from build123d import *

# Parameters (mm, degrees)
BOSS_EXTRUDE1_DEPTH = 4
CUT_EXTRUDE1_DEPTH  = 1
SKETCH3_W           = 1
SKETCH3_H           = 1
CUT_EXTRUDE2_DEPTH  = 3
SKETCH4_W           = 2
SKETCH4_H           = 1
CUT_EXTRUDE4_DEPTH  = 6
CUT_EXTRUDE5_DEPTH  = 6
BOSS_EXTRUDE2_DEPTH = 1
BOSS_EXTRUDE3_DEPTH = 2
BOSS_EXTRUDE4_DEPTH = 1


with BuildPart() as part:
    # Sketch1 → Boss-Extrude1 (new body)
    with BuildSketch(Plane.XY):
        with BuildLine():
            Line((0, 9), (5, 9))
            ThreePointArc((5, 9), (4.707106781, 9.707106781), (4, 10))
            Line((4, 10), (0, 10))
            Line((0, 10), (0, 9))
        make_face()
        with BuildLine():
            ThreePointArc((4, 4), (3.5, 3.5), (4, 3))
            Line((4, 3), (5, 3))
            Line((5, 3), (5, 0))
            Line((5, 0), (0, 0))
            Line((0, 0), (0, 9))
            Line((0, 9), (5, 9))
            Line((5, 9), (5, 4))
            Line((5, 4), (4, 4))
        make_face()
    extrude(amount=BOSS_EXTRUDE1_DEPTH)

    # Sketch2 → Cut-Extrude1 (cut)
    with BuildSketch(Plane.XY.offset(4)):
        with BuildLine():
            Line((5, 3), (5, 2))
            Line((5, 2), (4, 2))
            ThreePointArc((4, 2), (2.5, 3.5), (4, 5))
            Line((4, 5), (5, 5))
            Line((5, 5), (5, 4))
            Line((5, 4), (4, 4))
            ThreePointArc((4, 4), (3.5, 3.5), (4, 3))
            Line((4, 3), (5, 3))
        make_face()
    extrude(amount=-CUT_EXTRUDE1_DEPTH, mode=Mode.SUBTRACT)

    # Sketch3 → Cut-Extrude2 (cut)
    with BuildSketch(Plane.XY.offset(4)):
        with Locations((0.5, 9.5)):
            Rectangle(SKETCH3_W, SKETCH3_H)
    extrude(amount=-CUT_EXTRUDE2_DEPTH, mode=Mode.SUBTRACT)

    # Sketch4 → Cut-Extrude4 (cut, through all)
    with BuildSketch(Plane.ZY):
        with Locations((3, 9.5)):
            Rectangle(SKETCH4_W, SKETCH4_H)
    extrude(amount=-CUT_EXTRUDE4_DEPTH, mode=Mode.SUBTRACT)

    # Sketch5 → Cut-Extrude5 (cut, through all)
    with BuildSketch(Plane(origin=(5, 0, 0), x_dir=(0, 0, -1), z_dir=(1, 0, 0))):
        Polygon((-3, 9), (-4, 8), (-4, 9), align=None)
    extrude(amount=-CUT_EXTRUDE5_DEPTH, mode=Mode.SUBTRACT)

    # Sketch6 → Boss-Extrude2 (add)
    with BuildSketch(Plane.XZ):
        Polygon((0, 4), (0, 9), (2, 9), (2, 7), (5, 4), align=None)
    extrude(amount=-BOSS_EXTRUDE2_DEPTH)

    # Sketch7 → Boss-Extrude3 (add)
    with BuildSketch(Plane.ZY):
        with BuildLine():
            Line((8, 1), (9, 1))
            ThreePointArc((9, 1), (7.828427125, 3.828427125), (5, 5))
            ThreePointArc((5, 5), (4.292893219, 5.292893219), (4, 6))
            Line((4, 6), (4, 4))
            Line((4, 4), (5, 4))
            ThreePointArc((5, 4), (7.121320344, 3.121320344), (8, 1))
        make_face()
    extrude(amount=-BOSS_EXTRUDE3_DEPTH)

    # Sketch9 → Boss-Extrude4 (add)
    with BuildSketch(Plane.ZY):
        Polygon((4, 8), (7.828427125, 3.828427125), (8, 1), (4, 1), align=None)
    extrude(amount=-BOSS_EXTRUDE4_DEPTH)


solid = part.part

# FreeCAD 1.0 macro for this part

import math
import FreeCAD as App
import Part
import Sketcher
Q = App.Units.Quantity

doc = App.newDocument("Part")
params = doc.addObject("Spreadsheet::Sheet", "Params")
for row, (alias, value) in enumerate([
    ("sketch1_radius", "1 mm"),
    ("sketch1_radius2", "0.5 mm"),
    ("sketch1_width", "4 mm"),
    ("sketch1_height", "10 mm"),
    ("pad1_length", "4 mm"),
    ("sketch2_radius", "0.5 mm"),
    ("sketch2_radius2", "1.5 mm"),
    ("pocket1_length", "1 mm"),
    ("sketch3_width", "1 mm"),
    ("pocket2_length", "3 mm"),
    ("sketch4_width", "1 mm"),
    ("sketch4_height", "2 mm"),
    ("sketch5_width", "1 mm"),
    ("sketch6_width", "5 mm"),
    ("sketch6_width2", "2 mm"),
    ("pad2_length", "1 mm"),
    ("sketch7_radius", "4 mm"),
    ("sketch7_radius2", "1 mm"),
    ("pad3_length", "2 mm"),
    ("sketch8_width", "7 mm"),
    ("sketch8_height", "4 mm"),
    ("pad4_length", "1 mm"),
], start=1):
    params.set(f"A{row}", alias)
    params.set(f"B{row}", "=" + value)
    params.setAlias(f"B{row}", alias)

body = doc.addObject("PartDesign::Body", "Body")

sketch1 = doc.addObject("Sketcher::SketchObject", "Sketch")
body.addObject(sketch1)
sketch1.AttachmentSupport = (doc.XY_Plane, [""])
sketch1.MapMode = "FlatFace"
sketch1.addGeometry(Part.ArcOfCircle(Part.Circle(App.Vector(4, 9, 0), App.Vector(0, 0, 1), 1), math.radians(0), math.radians(90)), False)
sketch1.addGeometry(Part.LineSegment(App.Vector(4, 10, 0), App.Vector(0, 10, 0)), False)
sketch1.addGeometry(Part.LineSegment(App.Vector(0, 10, 0), App.Vector(0, 0, 0)), False)
sketch1.addGeometry(Part.LineSegment(App.Vector(0, 0, 0), App.Vector(5, 0, 0)), False)
sketch1.addGeometry(Part.LineSegment(App.Vector(5, 0, 0), App.Vector(5, 3, 0)), False)
sketch1.addGeometry(Part.LineSegment(App.Vector(5, 3, 0), App.Vector(4, 3, 0)), False)
sketch1.addGeometry(Part.ArcOfCircle(Part.Circle(App.Vector(4, 3.5, 0), App.Vector(0, 0, 1), 0.5), math.radians(90), math.radians(270)), False)
sketch1.addGeometry(Part.LineSegment(App.Vector(4, 4, 0), App.Vector(5, 4, 0)), False)
sketch1.addGeometry(Part.LineSegment(App.Vector(5, 4, 0), App.Vector(5, 9, 0)), False)
sketch1.addConstraint(Sketcher.Constraint("Tangent", 0, 2, 1, 1))
sketch1.addConstraint(Sketcher.Constraint("Coincident", 1, 2, 2, 1))
sketch1.addConstraint(Sketcher.Constraint("Coincident", 2, 2, 3, 1))
sketch1.addConstraint(Sketcher.Constraint("Coincident", 3, 2, 4, 1))
sketch1.addConstraint(Sketcher.Constraint("Coincident", 4, 2, 5, 1))
sketch1.addConstraint(Sketcher.Constraint("Tangent", 5, 2, 6, 2))
sketch1.addConstraint(Sketcher.Constraint("Tangent", 6, 1, 7, 1))
sketch1.addConstraint(Sketcher.Constraint("Coincident", 7, 2, 8, 1))
sketch1.addConstraint(Sketcher.Constraint("Tangent", 8, 2, 0, 1))
sketch1.addConstraint(Sketcher.Constraint("Horizontal", 1))
sketch1.addConstraint(Sketcher.Constraint("Vertical", 2))
sketch1.addConstraint(Sketcher.Constraint("Horizontal", 3))
sketch1.addConstraint(Sketcher.Constraint("Vertical", 4))
sketch1.addConstraint(Sketcher.Constraint("Horizontal", 5))
sketch1.addConstraint(Sketcher.Constraint("Horizontal", 7))
sketch1.addConstraint(Sketcher.Constraint("Vertical", 8))
sketch1.addConstraint(Sketcher.Constraint("Coincident", 2, 2, -1, 1))
sketch1.addConstraint(Sketcher.Constraint("Vertical", 0, 3, 6, 3))
sketch1.addConstraint(Sketcher.Constraint("Vertical", 4, 2, 7, 2))
sketch1.addConstraint(Sketcher.Constraint("Equal", 3, 8))
sketch1.addConstraint(Sketcher.Constraint("Radius", 0, Q("1 mm")))
sketch1.addConstraint(Sketcher.Constraint("Radius", 6, Q("0.5 mm")))
sketch1.addConstraint(Sketcher.Constraint("DistanceX", 1, 2, 1, 1, Q("4 mm")))
sketch1.addConstraint(Sketcher.Constraint("DistanceY", 2, 2, 2, 1, Q("10 mm")))
sketch1.setExpression("Constraints[20]", "Params.sketch1_radius")
sketch1.setExpression("Constraints[21]", "Params.sketch1_radius2")
sketch1.setExpression("Constraints[22]", "Params.sketch1_width")
sketch1.setExpression("Constraints[23]", "Params.sketch1_height")
pad1 = doc.addObject("PartDesign::Pad", "Pad")
body.addObject(pad1)
pad1.Profile = sketch1
pad1.setExpression("Length", "Params.pad1_length")

sketch2 = doc.addObject("Sketcher::SketchObject", "Sketch001")
body.addObject(sketch2)
sketch2.AttachmentSupport = (doc.XY_Plane, [""])
sketch2.MapMode = "FlatFace"
sketch2.AttachmentOffset = App.Placement(App.Vector(0, 0, 4), App.Rotation())
sketch2.addGeometry(Part.LineSegment(App.Vector(5, 2, 0), App.Vector(5, 3, 0)), False)
sketch2.addGeometry(Part.LineSegment(App.Vector(5, 3, 0), App.Vector(4, 3, 0)), False)
sketch2.addGeometry(Part.ArcOfCircle(Part.Circle(App.Vector(4, 3.5, 0), App.Vector(0, 0, 1), 0.5), math.radians(90), math.radians(270)), False)
sketch2.addGeometry(Part.LineSegment(App.Vector(4, 4, 0), App.Vector(5, 4, 0)), False)
sketch2.addGeometry(Part.LineSegment(App.Vector(5, 4, 0), App.Vector(5, 5, 0)), False)
sketch2.addGeometry(Part.LineSegment(App.Vector(5, 5, 0), App.Vector(4, 5, 0)), False)
sketch2.addGeometry(Part.ArcOfCircle(Part.Circle(App.Vector(4, 3.5, 0), App.Vector(0, 0, 1), 1.5), math.radians(90), math.radians(270)), False)
sketch2.addGeometry(Part.LineSegment(App.Vector(4, 2, 0), App.Vector(5, 2, 0)), False)
sketch2.addConstraint(Sketcher.Constraint("Coincident", 0, 2, 1, 1))
sketch2.addConstraint(Sketcher.Constraint("Tangent", 1, 2, 2, 2))
sketch2.addConstraint(Sketcher.Constraint("Tangent", 2, 1, 3, 1))
sketch2.addConstraint(Sketcher.Constraint("Coincident", 3, 2, 4, 1))
sketch2.addConstraint(Sketcher.Constraint("Coincident", 4, 2, 5, 1))
sketch2.addConstraint(Sketcher.Constraint("Tangent", 5, 2, 6, 1))
sketch2.addConstraint(Sketcher.Constraint("Tangent", 6, 2, 7, 1))
sketch2.addConstraint(Sketcher.Constraint("Coincident", 7, 2, 0, 1))
sketch2.addConstraint(Sketcher.Constraint("Vertical", 0))
sketch2.addConstraint(Sketcher.Constraint("Horizontal", 1))
sketch2.addConstraint(Sketcher.Constraint("Horizontal", 3))
sketch2.addConstraint(Sketcher.Constraint("Vertical", 4))
sketch2.addConstraint(Sketcher.Constraint("Horizontal", 5))
sketch2.addConstraint(Sketcher.Constraint("Horizontal", 7))
sketch2.addConstraint(Sketcher.Constraint("Coincident", 6, 3, 2, 3))
sketch2.addConstraint(Sketcher.Constraint("Vertical", 0, 2, 3, 2))
sketch2.addConstraint(Sketcher.Constraint("Equal", 7, 0))
sketch2.addConstraint(Sketcher.Constraint("Radius", 2, Q("0.5 mm")))
sketch2.addConstraint(Sketcher.Constraint("Radius", 6, Q("1.5 mm")))
sketch2.addConstraint(Sketcher.Constraint("DistanceX", -1, 1, 2, 3, Q("4 mm")))
sketch2.addConstraint(Sketcher.Constraint("DistanceY", -1, 1, 0, 2, Q("3 mm")))
sketch2.setExpression("Constraints[17]", "Params.sketch2_radius")
sketch2.setExpression("Constraints[18]", "Params.sketch2_radius2")
pocket1 = doc.addObject("PartDesign::Pocket", "Pocket")
body.addObject(pocket1)
pocket1.Profile = sketch2
pocket1.setExpression("Length", "Params.pocket1_length")

sketch3 = doc.addObject("Sketcher::SketchObject", "Sketch002")
body.addObject(sketch3)
sketch3.AttachmentSupport = (doc.XY_Plane, [""])
sketch3.MapMode = "FlatFace"
sketch3.AttachmentOffset = App.Placement(App.Vector(0, 0, 4), App.Rotation())
sketch3.addGeometry(Part.LineSegment(App.Vector(0, 10, 0), App.Vector(0, 9, 0)), False)
sketch3.addGeometry(Part.LineSegment(App.Vector(0, 9, 0), App.Vector(1, 9, 0)), False)
sketch3.addGeometry(Part.LineSegment(App.Vector(1, 9, 0), App.Vector(1, 10, 0)), False)
sketch3.addGeometry(Part.LineSegment(App.Vector(1, 10, 0), App.Vector(0, 10, 0)), False)
sketch3.addConstraint(Sketcher.Constraint("Coincident", 0, 2, 1, 1))
sketch3.addConstraint(Sketcher.Constraint("Coincident", 1, 2, 2, 1))
sketch3.addConstraint(Sketcher.Constraint("Coincident", 2, 2, 3, 1))
sketch3.addConstraint(Sketcher.Constraint("Coincident", 3, 2, 0, 1))
sketch3.addConstraint(Sketcher.Constraint("Vertical", 0))
sketch3.addConstraint(Sketcher.Constraint("Horizontal", 1))
sketch3.addConstraint(Sketcher.Constraint("Vertical", 2))
sketch3.addConstraint(Sketcher.Constraint("Horizontal", 3))
sketch3.addConstraint(Sketcher.Constraint("PointOnObject", 0, 2, -2))
sketch3.addConstraint(Sketcher.Constraint("Equal", 3, 0))
sketch3.addConstraint(Sketcher.Constraint("DistanceX", 1, 1, 1, 2, Q("1 mm")))
sketch3.addConstraint(Sketcher.Constraint("DistanceY", -1, 1, 0, 2, Q("9 mm")))
sketch3.setExpression("Constraints[10]", "Params.sketch3_width")
pocket2 = doc.addObject("PartDesign::Pocket", "Pocket001")
body.addObject(pocket2)
pocket2.Profile = sketch3
pocket2.setExpression("Length", "Params.pocket2_length")

sketch4 = doc.addObject("Sketcher::SketchObject", "Sketch003")
body.addObject(sketch4)
sketch4.AttachmentSupport = (doc.YZ_Plane, [""])
sketch4.MapMode = "FlatFace"
sketch4.addGeometry(Part.LineSegment(App.Vector(10, 2, 0), App.Vector(9, 2, 0)), False)
sketch4.addGeometry(Part.LineSegment(App.Vector(9, 2, 0), App.Vector(9, 4, 0)), False)
sketch4.addGeometry(Part.LineSegment(App.Vector(9, 4, 0), App.Vector(10, 4, 0)), False)
sketch4.addGeometry(Part.LineSegment(App.Vector(10, 4, 0), App.Vector(10, 2, 0)), False)
sketch4.addConstraint(Sketcher.Constraint("Coincident", 0, 2, 1, 1))
sketch4.addConstraint(Sketcher.Constraint("Coincident", 1, 2, 2, 1))
sketch4.addConstraint(Sketcher.Constraint("Coincident", 2, 2, 3, 1))
sketch4.addConstraint(Sketcher.Constraint("Coincident", 3, 2, 0, 1))
sketch4.addConstraint(Sketcher.Constraint("Horizontal", 0))
sketch4.addConstraint(Sketcher.Constraint("Vertical", 1))
sketch4.addConstraint(Sketcher.Constraint("Horizontal", 2))
sketch4.addConstraint(Sketcher.Constraint("Vertical", 3))
sketch4.addConstraint(Sketcher.Constraint("DistanceX", 0, 2, 0, 1, Q("1 mm")))
sketch4.addConstraint(Sketcher.Constraint("DistanceY", 1, 1, 1, 2, Q("2 mm")))
sketch4.addConstraint(Sketcher.Constraint("DistanceX", -1, 1, 0, 2, Q("9 mm")))
sketch4.addConstraint(Sketcher.Constraint("DistanceY", -1, 1, 0, 2, Q("2 mm")))
sketch4.setExpression("Constraints[8]", "Params.sketch4_width")
sketch4.setExpression("Constraints[9]", "Params.sketch4_height")
pocket3 = doc.addObject("PartDesign::Pocket", "Pocket002")
body.addObject(pocket3)
pocket3.Profile = sketch4
pocket3.Type = "ThroughAll"
pocket3.Reversed = True

sketch5 = doc.addObject("Sketcher::SketchObject", "Sketch004")
body.addObject(sketch5)
sketch5.AttachmentSupport = (doc.YZ_Plane, [""])
sketch5.MapMode = "FlatFace"
sketch5.AttachmentOffset = App.Placement(App.Vector(0, 0, 5), App.Rotation())
sketch5.addGeometry(Part.LineSegment(App.Vector(8, 4, 0), App.Vector(9, 3, 0)), False)
sketch5.addGeometry(Part.LineSegment(App.Vector(9, 3, 0), App.Vector(9, 4, 0)), False)
sketch5.addGeometry(Part.LineSegment(App.Vector(9, 4, 0), App.Vector(8, 4, 0)), False)
sketch5.addConstraint(Sketcher.Constraint("Coincident", 0, 2, 1, 1))
sketch5.addConstraint(Sketcher.Constraint("Coincident", 1, 2, 2, 1))
sketch5.addConstraint(Sketcher.Constraint("Coincident", 2, 2, 0, 1))
sketch5.addConstraint(Sketcher.Constraint("Vertical", 1))
sketch5.addConstraint(Sketcher.Constraint("Horizontal", 2))
sketch5.addConstraint(Sketcher.Constraint("Equal", 2, 1))
sketch5.addConstraint(Sketcher.Constraint("DistanceX", 2, 2, 2, 1, Q("1 mm")))
sketch5.addConstraint(Sketcher.Constraint("DistanceX", -1, 1, 0, 2, Q("9 mm")))
sketch5.addConstraint(Sketcher.Constraint("DistanceY", -1, 1, 0, 2, Q("3 mm")))
sketch5.setExpression("Constraints[6]", "Params.sketch5_width")
pocket4 = doc.addObject("PartDesign::Pocket", "Pocket003")
body.addObject(pocket4)
pocket4.Profile = sketch5
pocket4.Type = "ThroughAll"

sketch6 = doc.addObject("Sketcher::SketchObject", "Sketch005")
body.addObject(sketch6)
sketch6.AttachmentSupport = (doc.XZ_Plane, [""])
sketch6.MapMode = "FlatFace"
sketch6.addGeometry(Part.LineSegment(App.Vector(0, 9, 0), App.Vector(0, 4, 0)), False)
sketch6.addGeometry(Part.LineSegment(App.Vector(0, 4, 0), App.Vector(5, 4, 0)), False)
sketch6.addGeometry(Part.LineSegment(App.Vector(5, 4, 0), App.Vector(2, 7, 0)), False)
sketch6.addGeometry(Part.LineSegment(App.Vector(2, 7, 0), App.Vector(2, 9, 0)), False)
sketch6.addGeometry(Part.LineSegment(App.Vector(2, 9, 0), App.Vector(0, 9, 0)), False)
sketch6.addConstraint(Sketcher.Constraint("Coincident", 0, 2, 1, 1))
sketch6.addConstraint(Sketcher.Constraint("Coincident", 1, 2, 2, 1))
sketch6.addConstraint(Sketcher.Constraint("Coincident", 2, 2, 3, 1))
sketch6.addConstraint(Sketcher.Constraint("Coincident", 3, 2, 4, 1))
sketch6.addConstraint(Sketcher.Constraint("Coincident", 4, 2, 0, 1))
sketch6.addConstraint(Sketcher.Constraint("Vertical", 0))
sketch6.addConstraint(Sketcher.Constraint("Horizontal", 1))
sketch6.addConstraint(Sketcher.Constraint("Vertical", 3))
sketch6.addConstraint(Sketcher.Constraint("Horizontal", 4))
sketch6.addConstraint(Sketcher.Constraint("PointOnObject", 0, 2, -2))
sketch6.addConstraint(Sketcher.Constraint("Equal", 1, 0))
sketch6.addConstraint(Sketcher.Constraint("Equal", 4, 3))
sketch6.addConstraint(Sketcher.Constraint("DistanceX", 1, 1, 1, 2, Q("5 mm")))
sketch6.addConstraint(Sketcher.Constraint("DistanceX", 4, 2, 4, 1, Q("2 mm")))
sketch6.addConstraint(Sketcher.Constraint("DistanceY", -1, 1, 0, 2, Q("4 mm")))
sketch6.setExpression("Constraints[12]", "Params.sketch6_width")
sketch6.setExpression("Constraints[13]", "Params.sketch6_width2")
pad2 = doc.addObject("PartDesign::Pad", "Pad001")
body.addObject(pad2)
pad2.Profile = sketch6
pad2.setExpression("Length", "Params.pad2_length")
pad2.Reversed = True

sketch7 = doc.addObject("Sketcher::SketchObject", "Sketch006")
body.addObject(sketch7)
sketch7.AttachmentSupport = (doc.YZ_Plane, [""])
sketch7.MapMode = "FlatFace"
sketch7.addGeometry(Part.LineSegment(App.Vector(1, 8, 0), App.Vector(1, 9, 0)), False)
sketch7.addGeometry(Part.ArcOfCircle(Part.Circle(App.Vector(1, 5, 0), App.Vector(0, 0, 1), 4), math.radians(0), math.radians(90)), False)
sketch7.addGeometry(Part.ArcOfCircle(Part.Circle(App.Vector(6, 5, 0), App.Vector(0, 0, 1), 1), math.radians(-180), math.radians(-90)), False)
sketch7.addGeometry(Part.LineSegment(App.Vector(6, 4, 0), App.Vector(4, 4, 0)), False)
sketch7.addGeometry(Part.LineSegment(App.Vector(4, 4, 0), App.Vector(4, 5, 0)), False)
sketch7.addGeometry(Part.ArcOfCircle(Part.Circle(App.Vector(1, 5, 0), App.Vector(0, 0, 1), 3), math.radians(0), math.radians(90)), False)
sketch7.addConstraint(Sketcher.Constraint("Coincident", 0, 2, 1, 2))
sketch7.addConstraint(Sketcher.Constraint("Tangent", 1, 1, 2, 1))
sketch7.addConstraint(Sketcher.Constraint("Tangent", 2, 2, 3, 1))
sketch7.addConstraint(Sketcher.Constraint("Coincident", 3, 2, 4, 1))
sketch7.addConstraint(Sketcher.Constraint("Tangent", 4, 2, 5, 1))
sketch7.addConstraint(Sketcher.Constraint("Coincident", 5, 2, 0, 1))
sketch7.addConstraint(Sketcher.Constraint("Vertical", 0))
sketch7.addConstraint(Sketcher.Constraint("Horizontal", 3))
sketch7.addConstraint(Sketcher.Constraint("Vertical", 4))
sketch7.addConstraint(Sketcher.Constraint("Coincident", 5, 3, 1, 3))
sketch7.addConstraint(Sketcher.Constraint("Horizontal", 1, 3, 2, 3))
sketch7.addConstraint(Sketcher.Constraint("Vertical", 5, 3, 0, 2))
sketch7.addConstraint(Sketcher.Constraint("Equal", 0, 4))
sketch7.addConstraint(Sketcher.Constraint("Radius", 1, Q("4 mm")))
sketch7.addConstraint(Sketcher.Constraint("Radius", 2, Q("1 mm")))
sketch7.addConstraint(Sketcher.Constraint("DistanceX", -1, 1, 1, 3, Q("1 mm")))
sketch7.addConstraint(Sketcher.Constraint("DistanceY", -1, 1, 1, 3, Q("5 mm")))
sketch7.setExpression("Constraints[13]", "Params.sketch7_radius")
sketch7.setExpression("Constraints[14]", "Params.sketch7_radius2")
pad3 = doc.addObject("PartDesign::Pad", "Pad002")
body.addObject(pad3)
pad3.Profile = sketch7
pad3.setExpression("Length", "Params.pad3_length")

sketch8 = doc.addObject("Sketcher::SketchObject", "Sketch007")
body.addObject(sketch8)
sketch8.AttachmentSupport = (doc.YZ_Plane, [""])
sketch8.MapMode = "FlatFace"
sketch8.addGeometry(Part.LineSegment(App.Vector(3.828427, 7.828427, 0), App.Vector(8, 4, 0)), False)
sketch8.addGeometry(Part.LineSegment(App.Vector(8, 4, 0), App.Vector(1, 4, 0)), False)
sketch8.addGeometry(Part.LineSegment(App.Vector(1, 4, 0), App.Vector(1, 8, 0)), False)
sketch8.addGeometry(Part.LineSegment(App.Vector(1, 8, 0), App.Vector(3.828427, 7.828427, 0)), False)
sketch8.addConstraint(Sketcher.Constraint("Coincident", 0, 2, 1, 1))
sketch8.addConstraint(Sketcher.Constraint("Coincident", 1, 2, 2, 1))
sketch8.addConstraint(Sketcher.Constraint("Coincident", 2, 2, 3, 1))
sketch8.addConstraint(Sketcher.Constraint("Coincident", 3, 2, 0, 1))
sketch8.addConstraint(Sketcher.Constraint("Horizontal", 1))
sketch8.addConstraint(Sketcher.Constraint("Vertical", 2))
sketch8.addConstraint(Sketcher.Constraint("DistanceX", 1, 2, 1, 1, Q("7 mm")))
sketch8.addConstraint(Sketcher.Constraint("DistanceY", 2, 1, 2, 2, Q("4 mm")))
sketch8.addConstraint(Sketcher.Constraint("DistanceX", -1, 1, 0, 2, Q("8 mm")))
sketch8.addConstraint(Sketcher.Constraint("DistanceY", -1, 1, 0, 2, Q("4 mm")))
sketch8.addConstraint(Sketcher.Constraint("Distance", 0, Q("5.662056 mm")))
sketch8.addConstraint(Sketcher.Constraint("Distance", 3, Q("2.833626 mm")))
sketch8.setExpression("Constraints[6]", "Params.sketch8_width")
sketch8.setExpression("Constraints[7]", "Params.sketch8_height")
pad4 = doc.addObject("PartDesign::Pad", "Pad003")
body.addObject(pad4)
pad4.Profile = sketch8
pad4.setExpression("Length", "Params.pad4_length")

doc.recompute()
